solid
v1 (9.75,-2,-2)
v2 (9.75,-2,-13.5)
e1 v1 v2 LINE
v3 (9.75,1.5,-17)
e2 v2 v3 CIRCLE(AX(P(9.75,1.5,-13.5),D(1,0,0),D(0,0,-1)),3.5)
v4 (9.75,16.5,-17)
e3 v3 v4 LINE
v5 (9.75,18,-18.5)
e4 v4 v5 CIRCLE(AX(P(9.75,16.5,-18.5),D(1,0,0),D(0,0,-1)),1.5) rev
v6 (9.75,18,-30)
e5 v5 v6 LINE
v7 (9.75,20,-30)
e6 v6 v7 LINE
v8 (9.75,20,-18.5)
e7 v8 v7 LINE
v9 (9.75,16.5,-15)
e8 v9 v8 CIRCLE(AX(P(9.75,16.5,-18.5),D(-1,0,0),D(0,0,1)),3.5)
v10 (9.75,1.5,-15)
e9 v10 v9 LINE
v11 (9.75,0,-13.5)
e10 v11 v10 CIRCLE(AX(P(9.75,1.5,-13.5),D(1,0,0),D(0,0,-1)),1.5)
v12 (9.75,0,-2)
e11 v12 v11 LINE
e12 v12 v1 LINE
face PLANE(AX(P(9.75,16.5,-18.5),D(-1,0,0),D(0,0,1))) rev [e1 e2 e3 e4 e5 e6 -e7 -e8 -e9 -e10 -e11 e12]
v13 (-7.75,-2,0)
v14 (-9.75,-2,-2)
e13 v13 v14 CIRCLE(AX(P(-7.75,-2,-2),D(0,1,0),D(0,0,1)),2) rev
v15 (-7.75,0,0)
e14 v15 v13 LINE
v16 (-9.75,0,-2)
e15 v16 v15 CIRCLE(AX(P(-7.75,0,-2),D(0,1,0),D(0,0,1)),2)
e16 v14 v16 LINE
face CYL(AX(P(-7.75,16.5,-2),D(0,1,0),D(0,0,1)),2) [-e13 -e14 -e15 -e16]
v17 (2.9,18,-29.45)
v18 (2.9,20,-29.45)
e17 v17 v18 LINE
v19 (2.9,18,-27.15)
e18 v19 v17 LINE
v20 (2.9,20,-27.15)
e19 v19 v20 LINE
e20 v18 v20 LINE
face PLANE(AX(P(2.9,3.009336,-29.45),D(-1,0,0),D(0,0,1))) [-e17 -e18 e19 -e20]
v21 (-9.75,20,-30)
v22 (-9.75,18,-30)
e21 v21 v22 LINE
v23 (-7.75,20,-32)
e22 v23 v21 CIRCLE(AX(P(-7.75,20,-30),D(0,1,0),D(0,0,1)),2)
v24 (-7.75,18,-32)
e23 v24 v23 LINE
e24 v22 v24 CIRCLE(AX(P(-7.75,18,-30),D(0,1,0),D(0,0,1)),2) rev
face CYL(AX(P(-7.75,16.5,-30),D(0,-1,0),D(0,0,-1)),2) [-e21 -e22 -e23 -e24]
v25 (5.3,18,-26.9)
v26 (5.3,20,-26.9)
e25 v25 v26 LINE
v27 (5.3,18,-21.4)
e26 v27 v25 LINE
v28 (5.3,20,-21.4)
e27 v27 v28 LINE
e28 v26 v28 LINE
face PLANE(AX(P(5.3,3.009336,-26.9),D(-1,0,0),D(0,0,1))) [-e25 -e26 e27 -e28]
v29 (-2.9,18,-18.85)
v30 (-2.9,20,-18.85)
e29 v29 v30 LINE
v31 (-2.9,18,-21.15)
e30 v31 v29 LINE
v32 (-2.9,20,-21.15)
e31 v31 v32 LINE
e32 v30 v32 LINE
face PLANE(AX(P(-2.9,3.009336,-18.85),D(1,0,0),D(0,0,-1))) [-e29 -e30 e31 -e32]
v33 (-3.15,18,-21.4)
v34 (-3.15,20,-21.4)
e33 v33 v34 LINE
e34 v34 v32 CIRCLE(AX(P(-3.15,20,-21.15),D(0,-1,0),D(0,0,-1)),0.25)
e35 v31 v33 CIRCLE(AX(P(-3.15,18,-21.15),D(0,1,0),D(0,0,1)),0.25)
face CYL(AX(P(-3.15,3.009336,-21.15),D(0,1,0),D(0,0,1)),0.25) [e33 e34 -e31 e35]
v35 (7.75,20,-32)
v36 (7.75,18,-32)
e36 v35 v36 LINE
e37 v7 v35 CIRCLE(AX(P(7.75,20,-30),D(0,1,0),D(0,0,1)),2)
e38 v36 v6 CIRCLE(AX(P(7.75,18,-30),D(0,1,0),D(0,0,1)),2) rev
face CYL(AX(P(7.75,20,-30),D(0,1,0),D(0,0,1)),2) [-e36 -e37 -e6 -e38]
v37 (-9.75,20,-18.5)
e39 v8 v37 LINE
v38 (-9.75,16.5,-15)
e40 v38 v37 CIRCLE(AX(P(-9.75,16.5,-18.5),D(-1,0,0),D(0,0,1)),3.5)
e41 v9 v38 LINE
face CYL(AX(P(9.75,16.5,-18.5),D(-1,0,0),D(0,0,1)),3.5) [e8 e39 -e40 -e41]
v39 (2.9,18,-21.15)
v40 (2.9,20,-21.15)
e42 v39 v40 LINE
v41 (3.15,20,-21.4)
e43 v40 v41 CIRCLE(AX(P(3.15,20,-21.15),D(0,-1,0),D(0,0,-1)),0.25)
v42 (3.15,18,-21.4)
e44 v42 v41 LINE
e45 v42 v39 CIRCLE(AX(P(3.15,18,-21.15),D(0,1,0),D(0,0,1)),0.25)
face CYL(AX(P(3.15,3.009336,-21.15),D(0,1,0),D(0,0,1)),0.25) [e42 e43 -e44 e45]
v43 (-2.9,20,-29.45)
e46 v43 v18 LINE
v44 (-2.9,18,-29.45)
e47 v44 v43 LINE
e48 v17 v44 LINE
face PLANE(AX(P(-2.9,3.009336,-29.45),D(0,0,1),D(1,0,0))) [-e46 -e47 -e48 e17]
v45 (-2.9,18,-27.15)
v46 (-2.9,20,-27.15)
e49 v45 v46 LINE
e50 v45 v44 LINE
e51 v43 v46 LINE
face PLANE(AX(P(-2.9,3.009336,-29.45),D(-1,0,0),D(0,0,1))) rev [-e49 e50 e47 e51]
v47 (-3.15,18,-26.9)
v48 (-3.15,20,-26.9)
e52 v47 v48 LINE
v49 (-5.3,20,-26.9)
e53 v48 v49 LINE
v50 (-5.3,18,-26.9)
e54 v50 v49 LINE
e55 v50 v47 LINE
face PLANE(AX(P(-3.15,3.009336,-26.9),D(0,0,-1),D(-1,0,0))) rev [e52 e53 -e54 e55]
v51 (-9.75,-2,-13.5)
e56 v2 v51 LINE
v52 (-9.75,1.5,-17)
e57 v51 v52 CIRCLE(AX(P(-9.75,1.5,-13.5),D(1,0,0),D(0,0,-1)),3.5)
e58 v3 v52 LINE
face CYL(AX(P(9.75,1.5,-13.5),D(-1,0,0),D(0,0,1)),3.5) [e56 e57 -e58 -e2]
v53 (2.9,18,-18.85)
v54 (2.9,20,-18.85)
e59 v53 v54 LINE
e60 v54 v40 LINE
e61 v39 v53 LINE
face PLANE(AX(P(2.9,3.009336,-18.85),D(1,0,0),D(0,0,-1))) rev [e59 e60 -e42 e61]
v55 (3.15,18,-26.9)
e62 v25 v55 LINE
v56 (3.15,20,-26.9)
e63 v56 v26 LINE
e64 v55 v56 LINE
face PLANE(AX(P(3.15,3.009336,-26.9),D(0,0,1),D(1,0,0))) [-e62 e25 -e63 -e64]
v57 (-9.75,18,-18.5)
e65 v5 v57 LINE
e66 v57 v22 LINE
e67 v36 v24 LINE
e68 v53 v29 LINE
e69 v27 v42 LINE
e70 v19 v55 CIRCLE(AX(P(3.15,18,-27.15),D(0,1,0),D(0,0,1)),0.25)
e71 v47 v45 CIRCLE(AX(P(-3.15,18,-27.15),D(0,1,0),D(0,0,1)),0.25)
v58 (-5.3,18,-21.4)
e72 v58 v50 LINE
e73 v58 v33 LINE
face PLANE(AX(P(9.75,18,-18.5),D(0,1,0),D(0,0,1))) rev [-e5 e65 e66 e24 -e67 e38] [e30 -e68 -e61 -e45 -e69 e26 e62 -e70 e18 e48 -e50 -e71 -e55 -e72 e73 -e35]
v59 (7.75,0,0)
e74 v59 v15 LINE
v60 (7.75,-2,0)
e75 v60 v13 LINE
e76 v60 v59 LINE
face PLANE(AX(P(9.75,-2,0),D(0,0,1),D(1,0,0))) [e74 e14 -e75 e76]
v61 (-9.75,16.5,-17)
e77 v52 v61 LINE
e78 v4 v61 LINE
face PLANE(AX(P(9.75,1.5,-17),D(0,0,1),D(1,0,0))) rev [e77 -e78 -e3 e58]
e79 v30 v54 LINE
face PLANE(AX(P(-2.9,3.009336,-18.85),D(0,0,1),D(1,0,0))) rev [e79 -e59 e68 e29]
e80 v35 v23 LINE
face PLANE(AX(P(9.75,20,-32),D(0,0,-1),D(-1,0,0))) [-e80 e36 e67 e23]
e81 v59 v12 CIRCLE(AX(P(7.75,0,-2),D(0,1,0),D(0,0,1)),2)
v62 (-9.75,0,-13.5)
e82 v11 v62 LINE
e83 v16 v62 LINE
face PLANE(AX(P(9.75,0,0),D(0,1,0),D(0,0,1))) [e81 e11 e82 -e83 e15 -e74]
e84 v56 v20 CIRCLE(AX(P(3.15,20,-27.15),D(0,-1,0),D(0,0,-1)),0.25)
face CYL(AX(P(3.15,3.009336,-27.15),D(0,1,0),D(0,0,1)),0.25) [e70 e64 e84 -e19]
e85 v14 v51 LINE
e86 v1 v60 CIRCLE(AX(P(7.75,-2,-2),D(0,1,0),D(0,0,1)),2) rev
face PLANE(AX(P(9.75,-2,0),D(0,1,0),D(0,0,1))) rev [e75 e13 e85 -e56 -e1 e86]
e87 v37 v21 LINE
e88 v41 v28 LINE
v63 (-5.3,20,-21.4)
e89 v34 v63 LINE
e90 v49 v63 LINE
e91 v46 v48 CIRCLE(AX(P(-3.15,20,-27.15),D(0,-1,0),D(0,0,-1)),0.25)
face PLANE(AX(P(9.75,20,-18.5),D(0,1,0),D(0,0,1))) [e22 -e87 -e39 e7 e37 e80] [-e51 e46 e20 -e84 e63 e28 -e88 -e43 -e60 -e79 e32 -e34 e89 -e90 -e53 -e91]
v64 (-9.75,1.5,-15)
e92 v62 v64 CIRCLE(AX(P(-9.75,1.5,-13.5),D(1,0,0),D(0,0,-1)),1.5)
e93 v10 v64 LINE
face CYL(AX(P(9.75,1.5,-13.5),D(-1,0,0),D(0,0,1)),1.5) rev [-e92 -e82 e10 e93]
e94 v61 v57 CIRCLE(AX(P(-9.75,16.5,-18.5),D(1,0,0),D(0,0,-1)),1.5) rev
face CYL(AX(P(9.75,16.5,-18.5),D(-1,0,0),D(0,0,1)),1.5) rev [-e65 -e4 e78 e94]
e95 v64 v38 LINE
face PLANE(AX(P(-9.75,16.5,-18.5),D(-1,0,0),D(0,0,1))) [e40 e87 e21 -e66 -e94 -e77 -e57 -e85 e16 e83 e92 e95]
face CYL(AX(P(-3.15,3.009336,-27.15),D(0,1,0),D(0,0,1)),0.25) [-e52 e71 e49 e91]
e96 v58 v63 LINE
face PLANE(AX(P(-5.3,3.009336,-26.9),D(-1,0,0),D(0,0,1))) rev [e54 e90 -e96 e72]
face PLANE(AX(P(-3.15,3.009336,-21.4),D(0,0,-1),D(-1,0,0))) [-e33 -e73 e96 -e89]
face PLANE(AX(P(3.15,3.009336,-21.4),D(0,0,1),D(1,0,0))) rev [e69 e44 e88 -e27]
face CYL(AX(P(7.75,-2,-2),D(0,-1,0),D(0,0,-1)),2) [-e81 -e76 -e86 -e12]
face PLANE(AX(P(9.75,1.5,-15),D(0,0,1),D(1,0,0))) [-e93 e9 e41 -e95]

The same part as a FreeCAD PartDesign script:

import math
import FreeCAD as App
import Part
import Sketcher

V = App.Vector
Q = App.Units.Quantity


def edges_at(feature, points):
    """Names of the edges that pass closest to the given points."""
    edges = feature.Shape.Edges
    near = lambda p: min(range(len(edges)), key=lambda i: edges[i].distToShape(Part.Vertex(*p))[0])
    return sorted({f"Edge{near(p) + 1}" for p in points})

doc = App.newDocument("Part")
params = doc.addObject("Spreadsheet::Sheet", "Params")
for row, (alias, value) in enumerate([
    ("sketch1_radius", "3.5 mm"),
    ("sketch1_radius2", "1.5 mm"),
    ("sketch1_width", "15 mm"),
    ("sketch1_height", "13.5 mm"),
    ("pad1_length", "19.5 mm"),
    ("sketch2_radius", "0.25 mm"),
    ("sketch2_width", "5.8 mm"),
    ("sketch2_height", "2.3 mm"),
    ("sketch2_height2", "5.5 mm"),
    ("sketch2_width2", "2.15 mm"),
    ("pocket1_length", "2 mm"),
    ("fillet_radius", "2 mm"),
], start=1):
    params.set(f"A{row}", alias)
    params.set(f"B{row}", "=" + value)
    params.setAlias(f"B{row}", alias)

body = doc.addObject("PartDesign::Body", "Body")

sketch1 = body.newObject("Sketcher::SketchObject", "Sketch")
sketch1.AttachmentSupport = (doc.getObject("YZ_Plane"), [""])
sketch1.MapMode = "FlatFace"
sketch1.addGeometry([
    Part.LineSegment(V(0, -13.5, 0), V(0, 0, 0)),
    Part.LineSegment(V(0, 0, 0), V(-2, 0, 0)),
    Part.LineSegment(V(-2, 0, 0), V(-2, -13.5, 0)),
    Part.ArcOfCircle(Part.Circle(V(1.5, -13.5, 0), V(0, 0, 1), 3.5), math.radians(-180), math.radians(-90)),
    Part.LineSegment(V(1.5, -17, 0), V(16.5, -17, 0)),
    Part.ArcOfCircle(Part.Circle(V(16.5, -18.5, 0), V(0, 0, 1), 1.5), math.radians(0), math.radians(90)),
    Part.LineSegment(V(18, -18.5, 0), V(18, -32, 0)),
    Part.LineSegment(V(18, -32, 0), V(20, -32, 0)),
    Part.LineSegment(V(20, -32, 0), V(20, -18.5, 0)),
    Part.ArcOfCircle(Part.Circle(V(16.5, -18.5, 0), V(0, 0, 1), 3.5), math.radians(0), math.radians(90)),
    Part.LineSegment(V(16.5, -15, 0), V(1.5, -15, 0)),
    Part.ArcOfCircle(Part.Circle(V(1.5, -13.5, 0), V(0, 0, 1), 1.5), math.radians(180), math.radians(270)),
], False)
sketch1.addConstraint([
    Sketcher.Constraint("Coincident", 0, 2, 1, 1),
    Sketcher.Constraint("Coincident", 1, 2, 2, 1),
    Sketcher.Constraint("Tangent", 2, 2, 3, 1),
    Sketcher.Constraint("Tangent", 3, 2, 4, 1),
    Sketcher.Constraint("Tangent", 4, 2, 5, 2),
    Sketcher.Constraint("Tangent", 5, 1, 6, 1),
    Sketcher.Constraint("Coincident", 6, 2, 7, 1),
    Sketcher.Constraint("Coincident", 7, 2, 8, 1),
    Sketcher.Constraint("Tangent", 8, 2, 9, 1),
    Sketcher.Constraint("Tangent", 9, 2, 10, 1),
    Sketcher.Constraint("Tangent", 10, 2, 11, 2),
    Sketcher.Constraint("Tangent", 11, 1, 0, 1),
    Sketcher.Constraint("Vertical", 0),
    Sketcher.Constraint("Horizontal", 1),
    Sketcher.Constraint("Vertical", 2),
    Sketcher.Constraint("Horizontal", 4),
    Sketcher.Constraint("Vertical", 6),
    Sketcher.Constraint("Horizontal", 7),
    Sketcher.Constraint("Vertical", 8),
    Sketcher.Constraint("Horizontal", 10),
    Sketcher.Constraint("Coincident", 0, 2, -1, 1),
    Sketcher.Constraint("Coincident", 9, 3, 5, 3),
    Sketcher.Constraint("Coincident", 11, 3, 3, 3),
    Sketcher.Constraint("Equal", 3, 9),
    Sketcher.Constraint("Equal", 2, 6),
    Sketcher.Constraint("Radius", 3, Q("3.5 mm")),
    Sketcher.Constraint("Radius", 5, Q("1.5 mm")),
    Sketcher.Constraint("DistanceX", 4, 1, 4, 2, Q("15 mm")),
    Sketcher.Constraint("DistanceY", 0, 1, 0, 2, Q("13.5 mm")),
])
sketch1.setExpression("Constraints[25]", "Params.sketch1_radius")
sketch1.setExpression("Constraints[26]", "Params.sketch1_radius2")
sketch1.setExpression("Constraints[27]", "Params.sketch1_width")
sketch1.setExpression("Constraints[28]", "Params.sketch1_height")
pad1 = body.newObject("PartDesign::Pad", "Pad")
pad1.Profile = sketch1
pad1.setExpression("Length", "Params.pad1_length")
pad1.Midplane = True

sketch2 = body.newObject("Sketcher::SketchObject", "Sketch001")
sketch2.AttachmentSupport = (doc.getObject("XZ_Plane"), [""])
sketch2.MapMode = "FlatFace"
sketch2.AttachmentOffset = App.Placement(V(0, 0, -20), App.Rotation())
sketch2.addGeometry([
    Part.LineSegment(V(2.9, -29.45, 0), V(-2.9, -29.45, 0)),
    Part.LineSegment(V(-2.9, -29.45, 0), V(-2.9, -27.15, 0)),
    Part.ArcOfCircle(Part.Circle(V(-3.15, -27.15, 0), V(0, 0, 1), 0.25), math.radians(0), math.radians(90)),
    Part.LineSegment(V(-3.15, -26.9, 0), V(-5.3, -26.9, 0)),
    Part.LineSegment(V(-5.3, -26.9, 0), V(-5.3, -21.4, 0)),
    Part.LineSegment(V(-5.3, -21.4, 0), V(-3.15, -21.4, 0)),
    Part.ArcOfCircle(Part.Circle(V(-3.15, -21.15, 0), V(0, 0, 1), 0.25), math.radians(-90), math.radians(0)),
    Part.LineSegment(V(-2.9, -21.15, 0), V(-2.9, -18.85, 0)),
    Part.LineSegment(V(-2.9, -18.85, 0), V(2.9, -18.85, 0)),
    Part.LineSegment(V(2.9, -18.85, 0), V(2.9, -21.15, 0)),
    Part.ArcOfCircle(Part.Circle(V(3.15, -21.15, 0), V(0, 0, 1), 0.25), math.radians(-180), math.radians(-90)),
    Part.LineSegment(V(3.15, -21.4, 0), V(5.3, -21.4, 0)),
    Part.LineSegment(V(5.3, -21.4, 0), V(5.3, -26.9, 0)),
    Part.LineSegment(V(5.3, -26.9, 0), V(3.15, -26.9, 0)),
    Part.ArcOfCircle(Part.Circle(V(3.15, -27.15, 0), V(0, 0, 1), 0.25), math.radians(90), math.radians(180)),
    Part.LineSegment(V(2.9, -27.15, 0), V(2.9, -29.45, 0)),
], False)
sketch2.addConstraint([
    Sketcher.Constraint("Coincident", 0, 2, 1, 1),
    Sketcher.Constraint("Tangent", 1, 2, 2, 1),
    Sketcher.Constraint("Tangent", 2, 2, 3, 1),
    Sketcher.Constraint("Coincident", 3, 2, 4, 1),
    Sketcher.Constraint("Coincident", 4, 2, 5, 1),
    Sketcher.Constraint("Tangent", 5, 2, 6, 1),
    Sketcher.Constraint("Tangent", 6, 2, 7, 1),
    Sketcher.Constraint("Coincident", 7, 2, 8, 1),
    Sketcher.Constraint("Coincident", 8, 2, 9, 1),
    Sketcher.Constraint("Tangent", 9, 2, 10, 1),
    Sketcher.Constraint("Tangent", 10, 2, 11, 1),
    Sketcher.Constraint("Coincident", 11, 2, 12, 1),
    Sketcher.Constraint("Coincident", 12, 2, 13, 1),
    Sketcher.Constraint("Tangent", 13, 2, 14, 1),
    Sketcher.Constraint("Tangent", 14, 2, 15, 1),
    Sketcher.Constraint("Coincident", 15, 2, 0, 1),
    Sketcher.Constraint("Horizontal", 0),
    Sketcher.Constraint("Vertical", 1),
    Sketcher.Constraint("Horizontal", 3),
    Sketcher.Constraint("Vertical", 4),
    Sketcher.Constraint("Horizontal", 5),
    Sketcher.Constraint("Vertical", 7),
    Sketcher.Constraint("Horizontal", 8),
    Sketcher.Constraint("Vertical", 9),
    Sketcher.Constraint("Horizontal", 11),
    Sketcher.Constraint("Vertical", 12),
    Sketcher.Constraint("Horizontal", 13),
    Sketcher.Constraint("Vertical", 15),
    Sketcher.Constraint("Equal", 2, 6),
    Sketcher.Constraint("Equal", 6, 10),
    Sketcher.Constraint("Equal", 10, 14),
    Sketcher.Constraint("Symmetric", 6, 3, 10, 3, -2),
    Sketcher.Constraint("Symmetric", 2, 3, 14, 3, -2),
    Sketcher.Constraint("Vertical", 2, 3, 6, 3),
    Sketcher.Constraint("Equal", 5, 11),
    Sketcher.Constraint("Equal", 1, 7),
    Sketcher.Constraint("Radius", 2, Q("0.25 mm")),
    Sketcher.Constraint("DistanceX", 0, 2, 0, 1, Q("5.8 mm")),
    Sketcher.Constraint("DistanceY", 1, 1, 1, 2, Q("2.3 mm")),
    Sketcher.Constraint("DistanceY", 4, 1, 4, 2, Q("5.5 mm")),
    Sketcher.Constraint("DistanceX", 3, 2, 3, 1, Q("2.15 mm")),
    Sketcher.Constraint("DistanceY", 2, 2, -1, 1, Q("26.9 mm")),
])
sketch2.setExpression("Constraints[36]", "Params.sketch2_radius")
sketch2.setExpression("Constraints[37]", "Params.sketch2_width")
sketch2.setExpression("Constraints[38]", "Params.sketch2_height")
sketch2.setExpression("Constraints[39]", "Params.sketch2_height2")
sketch2.setExpression("Constraints[40]", "Params.sketch2_width2")
pocket1 = body.newObject("PartDesign::Pocket", "Pocket")
pocket1.Profile = sketch2
pocket1.setExpression("Length", "Params.pocket1_length")
pocket1.Reversed = True
doc.recompute()

fillet = body.newObject("PartDesign::Fillet", "Fillet")
fillet.Base = (pocket1, edges_at(pocket1, [
    (-9.75, -1, 0),
    (-9.75, 19, -32),
    (9.75, -1, 0),
    (9.75, 19, -32),
]))
fillet.setExpression("Radius", "Params.fillet_radius")

doc.recompute()
